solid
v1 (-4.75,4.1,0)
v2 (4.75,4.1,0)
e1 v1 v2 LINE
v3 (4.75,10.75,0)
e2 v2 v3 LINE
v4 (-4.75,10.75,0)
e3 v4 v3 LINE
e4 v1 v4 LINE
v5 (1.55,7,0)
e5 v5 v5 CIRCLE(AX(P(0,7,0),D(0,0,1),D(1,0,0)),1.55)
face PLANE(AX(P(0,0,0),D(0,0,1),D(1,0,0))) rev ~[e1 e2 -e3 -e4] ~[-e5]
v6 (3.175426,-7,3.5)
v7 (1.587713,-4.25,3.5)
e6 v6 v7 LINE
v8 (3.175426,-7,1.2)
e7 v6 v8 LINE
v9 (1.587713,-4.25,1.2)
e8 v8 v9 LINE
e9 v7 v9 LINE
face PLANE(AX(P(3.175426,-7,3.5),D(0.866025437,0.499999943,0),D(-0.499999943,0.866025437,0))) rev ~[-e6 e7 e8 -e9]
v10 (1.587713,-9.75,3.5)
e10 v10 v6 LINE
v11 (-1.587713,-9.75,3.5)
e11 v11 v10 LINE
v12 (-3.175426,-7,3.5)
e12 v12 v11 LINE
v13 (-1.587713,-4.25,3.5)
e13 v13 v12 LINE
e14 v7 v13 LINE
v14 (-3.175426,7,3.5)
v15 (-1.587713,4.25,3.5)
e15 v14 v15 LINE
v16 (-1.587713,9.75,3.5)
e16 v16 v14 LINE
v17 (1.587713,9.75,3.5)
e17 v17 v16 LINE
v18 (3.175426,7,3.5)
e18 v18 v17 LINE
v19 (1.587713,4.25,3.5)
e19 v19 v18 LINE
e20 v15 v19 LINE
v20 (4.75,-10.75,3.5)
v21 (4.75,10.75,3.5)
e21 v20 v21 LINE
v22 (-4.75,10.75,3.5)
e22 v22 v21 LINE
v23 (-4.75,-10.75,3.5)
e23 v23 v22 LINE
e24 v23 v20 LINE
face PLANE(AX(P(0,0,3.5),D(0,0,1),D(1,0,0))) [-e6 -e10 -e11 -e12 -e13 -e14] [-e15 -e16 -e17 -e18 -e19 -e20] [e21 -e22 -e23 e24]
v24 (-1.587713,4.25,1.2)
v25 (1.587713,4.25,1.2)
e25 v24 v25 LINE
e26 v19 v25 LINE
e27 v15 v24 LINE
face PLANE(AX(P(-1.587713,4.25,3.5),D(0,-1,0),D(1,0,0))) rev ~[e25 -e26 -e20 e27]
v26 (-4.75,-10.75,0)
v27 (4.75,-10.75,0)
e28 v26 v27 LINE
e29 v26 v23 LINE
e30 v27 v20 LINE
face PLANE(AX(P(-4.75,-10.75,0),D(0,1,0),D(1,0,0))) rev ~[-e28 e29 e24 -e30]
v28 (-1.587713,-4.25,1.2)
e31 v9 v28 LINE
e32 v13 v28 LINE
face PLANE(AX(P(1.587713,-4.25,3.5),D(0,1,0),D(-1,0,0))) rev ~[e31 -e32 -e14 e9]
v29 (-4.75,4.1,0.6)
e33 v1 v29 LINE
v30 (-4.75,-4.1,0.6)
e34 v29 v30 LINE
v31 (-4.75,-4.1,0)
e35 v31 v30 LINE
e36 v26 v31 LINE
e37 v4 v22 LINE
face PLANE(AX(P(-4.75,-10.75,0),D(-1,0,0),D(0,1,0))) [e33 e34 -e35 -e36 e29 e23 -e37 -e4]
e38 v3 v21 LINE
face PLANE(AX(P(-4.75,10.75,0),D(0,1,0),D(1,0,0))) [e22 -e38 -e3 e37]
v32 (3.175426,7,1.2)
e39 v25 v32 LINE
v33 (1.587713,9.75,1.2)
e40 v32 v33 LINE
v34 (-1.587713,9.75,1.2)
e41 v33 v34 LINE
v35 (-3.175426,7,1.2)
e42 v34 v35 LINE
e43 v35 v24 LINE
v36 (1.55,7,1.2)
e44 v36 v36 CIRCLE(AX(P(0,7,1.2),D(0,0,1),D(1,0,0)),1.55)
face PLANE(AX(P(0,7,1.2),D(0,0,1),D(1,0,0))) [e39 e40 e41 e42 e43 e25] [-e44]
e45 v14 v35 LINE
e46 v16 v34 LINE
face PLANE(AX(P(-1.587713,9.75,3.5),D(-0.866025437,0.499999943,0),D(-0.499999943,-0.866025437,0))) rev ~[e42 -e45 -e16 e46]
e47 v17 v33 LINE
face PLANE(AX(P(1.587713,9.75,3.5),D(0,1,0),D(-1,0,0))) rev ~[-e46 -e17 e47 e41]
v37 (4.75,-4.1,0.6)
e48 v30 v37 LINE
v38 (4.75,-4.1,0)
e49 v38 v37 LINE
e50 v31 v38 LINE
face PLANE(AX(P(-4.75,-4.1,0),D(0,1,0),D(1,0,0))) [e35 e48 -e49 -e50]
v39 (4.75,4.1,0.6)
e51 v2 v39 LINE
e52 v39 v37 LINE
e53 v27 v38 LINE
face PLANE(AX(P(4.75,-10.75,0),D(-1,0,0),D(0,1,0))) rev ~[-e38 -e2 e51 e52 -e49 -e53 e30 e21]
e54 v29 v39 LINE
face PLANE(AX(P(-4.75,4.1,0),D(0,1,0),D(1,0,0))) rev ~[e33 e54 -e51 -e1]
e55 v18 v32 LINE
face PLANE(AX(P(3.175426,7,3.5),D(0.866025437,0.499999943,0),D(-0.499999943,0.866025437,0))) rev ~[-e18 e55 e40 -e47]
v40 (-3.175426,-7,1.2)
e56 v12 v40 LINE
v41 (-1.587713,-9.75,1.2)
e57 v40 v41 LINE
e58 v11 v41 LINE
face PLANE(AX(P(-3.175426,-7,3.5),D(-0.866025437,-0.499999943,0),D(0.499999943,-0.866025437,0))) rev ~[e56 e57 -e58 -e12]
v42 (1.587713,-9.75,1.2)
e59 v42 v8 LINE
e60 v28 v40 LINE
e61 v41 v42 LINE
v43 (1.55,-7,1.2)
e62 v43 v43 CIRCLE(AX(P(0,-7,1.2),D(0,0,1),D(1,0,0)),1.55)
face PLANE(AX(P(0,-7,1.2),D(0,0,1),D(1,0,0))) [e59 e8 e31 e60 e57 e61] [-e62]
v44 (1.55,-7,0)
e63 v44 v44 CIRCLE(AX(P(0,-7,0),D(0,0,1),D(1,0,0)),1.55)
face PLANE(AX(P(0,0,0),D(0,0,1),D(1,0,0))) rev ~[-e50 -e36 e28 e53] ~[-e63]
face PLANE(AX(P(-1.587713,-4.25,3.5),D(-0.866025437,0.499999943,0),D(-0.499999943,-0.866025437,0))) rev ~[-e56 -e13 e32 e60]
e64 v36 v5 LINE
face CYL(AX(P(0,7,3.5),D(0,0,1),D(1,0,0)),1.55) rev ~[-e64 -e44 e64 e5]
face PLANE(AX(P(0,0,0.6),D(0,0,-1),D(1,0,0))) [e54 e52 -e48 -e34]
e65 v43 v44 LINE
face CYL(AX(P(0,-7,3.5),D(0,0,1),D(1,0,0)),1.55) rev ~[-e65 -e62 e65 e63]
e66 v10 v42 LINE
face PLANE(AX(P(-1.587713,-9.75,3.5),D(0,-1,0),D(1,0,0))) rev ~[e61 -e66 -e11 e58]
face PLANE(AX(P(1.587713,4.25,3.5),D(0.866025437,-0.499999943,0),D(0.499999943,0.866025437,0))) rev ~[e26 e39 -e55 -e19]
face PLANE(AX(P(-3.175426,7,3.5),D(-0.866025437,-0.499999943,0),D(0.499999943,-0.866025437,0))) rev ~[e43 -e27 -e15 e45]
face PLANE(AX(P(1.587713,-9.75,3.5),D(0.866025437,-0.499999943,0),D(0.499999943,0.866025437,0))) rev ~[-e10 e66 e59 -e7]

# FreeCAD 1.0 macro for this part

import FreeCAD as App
import Part
import Sketcher

V = App.Vector
Q = App.Units.Quantity

doc = App.newDocument("Part")
body = doc.addObject("PartDesign::Body", "Body")

# Sketch on XY plane
sketch1 = doc.addObject("Sketcher::SketchObject", "Sketch")
body.addObject(sketch1)
sketch1.AttachmentSupport = (doc.XY_Plane, [""])
sketch1.MapMode = "FlatFace"
sketch1.addGeometry(Part.LineSegment(V(-5, 11, 0), V(-5, -11, 0)), False)
sketch1.addGeometry(Part.LineSegment(V(-5, -11, 0), V(5, -11, 0)), False)
sketch1.addGeometry(Part.LineSegment(V(5, -11, 0), V(5, 11, 0)), False)
sketch1.addGeometry(Part.LineSegment(V(5, 11, 0), V(-5, 11, 0)), False)
sketch1.addConstraint(Sketcher.Constraint("Coincident", 0, 2, 1, 1))
sketch1.addConstraint(Sketcher.Constraint("Coincident", 1, 2, 2, 1))
sketch1.addConstraint(Sketcher.Constraint("Coincident", 2, 2, 3, 1))
sketch1.addConstraint(Sketcher.Constraint("Coincident", 3, 2, 0, 1))
sketch1.addConstraint(Sketcher.Constraint("Vertical", 0))
sketch1.addConstraint(Sketcher.Constraint("Horizontal", 1))
sketch1.addConstraint(Sketcher.Constraint("Vertical", 2))
sketch1.addConstraint(Sketcher.Constraint("Horizontal", 3))
sketch1.addConstraint(Sketcher.Constraint("Symmetric", 0, 2, 2, 2, -1, 1))
sketch1.addConstraint(Sketcher.Constraint("DistanceX", 1, 1, 1, 2, Q("9.5 mm")))
sketch1.addConstraint(Sketcher.Constraint("DistanceY", 0, 2, 0, 1, Q("21.5 mm")))
pad1 = doc.addObject("PartDesign::Pad", "Pad")
body.addObject(pad1)
pad1.Profile = sketch1
pad1.Length = 3.5

# Sketch on XY plane
sketch2 = doc.addObject("Sketcher::SketchObject", "Sketch001")
body.addObject(sketch2)
sketch2.AttachmentSupport = (doc.XY_Plane, [""])
sketch2.MapMode = "FlatFace"
sketch2.AttachmentOffset = App.Placement(V(0, 0, 3.5), App.Rotation())
sketch2.addGeometry(Part.Circle(V(0, 7, 0), V(0, 0, 1), 1.6), False)
sketch2.addGeometry(Part.Circle(V(0, -7, 0), V(0, 0, 1), 1.6), False)
sketch2.addConstraint(Sketcher.Constraint("Equal", 0, 1))
sketch2.addConstraint(Sketcher.Constraint("Symmetric", 0, 3, 1, 3, -1, 1))
sketch2.addConstraint(Sketcher.Constraint("PointOnObject", 0, 3, -2))
sketch2.addConstraint(Sketcher.Constraint("Diameter", 0, Q("3.1 mm")))
sketch2.addConstraint(Sketcher.Constraint("DistanceY", -1, 1, 0, 3, Q("7 mm")))
pocket1 = doc.addObject("PartDesign::Pocket", "Pocket")
body.addObject(pocket1)
pocket1.Profile = sketch2
pocket1.Type = "ThroughAll"

# Sketch on XY plane
sketch3 = doc.addObject("Sketcher::SketchObject", "Sketch002")
body.addObject(sketch3)
sketch3.AttachmentSupport = (doc.XY_Plane, [""])
sketch3.MapMode = "FlatFace"
sketch3.addGeometry(Part.LineSegment(V(-5, -4, 0), V(-5, 4, 0)), False)
sketch3.addGeometry(Part.LineSegment(V(-5, 4, 0), V(5, 4, 0)), False)
sketch3.addGeometry(Part.LineSegment(V(5, 4, 0), V(5, -4, 0)), False)
sketch3.addGeometry(Part.LineSegment(V(5, -4, 0), V(-5, -4, 0)), False)
sketch3.addConstraint(Sketcher.Constraint("Coincident", 0, 2, 1, 1))
sketch3.addConstraint(Sketcher.Constraint("Coincident", 1, 2, 2, 1))
sketch3.addConstraint(Sketcher.Constraint("Coincident", 2, 2, 3, 1))
sketch3.addConstraint(Sketcher.Constraint("Coincident", 3, 2, 0, 1))
sketch3.addConstraint(Sketcher.Constraint("Vertical", 0))
sketch3.addConstraint(Sketcher.Constraint("Horizontal", 1))
sketch3.addConstraint(Sketcher.Constraint("Vertical", 2))
sketch3.addConstraint(Sketcher.Constraint("Horizontal", 3))
sketch3.addConstraint(Sketcher.Constraint("Symmetric", 0, 2, 2, 2, -1, 1))
sketch3.addConstraint(Sketcher.Constraint("DistanceX", 1, 1, 1, 2, Q("9.5 mm")))
sketch3.addConstraint(Sketcher.Constraint("DistanceY", 0, 1, 0, 2, Q("8.2 mm")))
pocket2 = doc.addObject("PartDesign::Pocket", "Pocket001")
body.addObject(pocket2)
pocket2.Profile = sketch3
pocket2.Length = 0.6
pocket2.Reversed = True

# Sketch on XY plane
sketch4 = doc.addObject("Sketcher::SketchObject", "Sketch003")
body.addObject(sketch4)
sketch4.AttachmentSupport = (doc.XY_Plane, [""])
sketch4.MapMode = "FlatFace"
sketch4.AttachmentOffset = App.Placement(V(0, 0, 3.5), App.Rotation())
sketch4.addGeometry(Part.LineSegment(V(1.6, 4.2, 0), V(3.2, 7, 0)), False)
sketch4.addGeometry(Part.LineSegment(V(3.2, 7, 0), V(1.6, 9.8, 0)), False)
sketch4.addGeometry(Part.LineSegment(V(1.6, 9.8, 0), V(-1.6, 9.8, 0)), False)
sketch4.addGeometry(Part.LineSegment(V(-1.6, 9.8, 0), V(-3.2, 7, 0)), False)
sketch4.addGeometry(Part.LineSegment(V(-3.2, 7, 0), V(-1.6, 4.2, 0)), False)
sketch4.addGeometry(Part.LineSegment(V(-1.6, 4.2, 0), V(1.6, 4.2, 0)), False)
sketch4.addGeometry(Part.LineSegment(V(1.6, -9.8, 0), V(3.2, -7, 0)), False)
sketch4.addGeometry(Part.LineSegment(V(3.2, -7, 0), V(1.6, -4.2, 0)), False)
sketch4.addGeometry(Part.LineSegment(V(1.6, -4.2, 0), V(-1.6, -4.2, 0)), False)
sketch4.addGeometry(Part.LineSegment(V(-1.6, -4.2, 0), V(-3.2, -7, 0)), False)
sketch4.addGeometry(Part.LineSegment(V(-3.2, -7, 0), V(-1.6, -9.8, 0)), False)
sketch4.addGeometry(Part.LineSegment(V(-1.6, -9.8, 0), V(1.6, -9.8, 0)), False)
sketch4.addConstraint(Sketcher.Constraint("Coincident", 0, 2, 1, 1))
sketch4.addConstraint(Sketcher.Constraint("Coincident", 1, 2, 2, 1))
sketch4.addConstraint(Sketcher.Constraint("Coincident", 2, 2, 3, 1))
sketch4.addConstraint(Sketcher.Constraint("Coincident", 3, 2, 4, 1))
sketch4.addConstraint(Sketcher.Constraint("Coincident", 4, 2, 5, 1))
sketch4.addConstraint(Sketcher.Constraint("Coincident", 5, 2, 0, 1))
sketch4.addConstraint(Sketcher.Constraint("Coincident", 6, 2, 7, 1))
sketch4.addConstraint(Sketcher.Constraint("Coincident", 7, 2, 8, 1))
sketch4.addConstraint(Sketcher.Constraint("Coincident", 8, 2, 9, 1))
sketch4.addConstraint(Sketcher.Constraint("Coincident", 9, 2, 10, 1))
sketch4.addConstraint(Sketcher.Constraint("Coincident", 10, 2, 11, 1))
sketch4.addConstraint(Sketcher.Constraint("Coincident", 11, 2, 6, 1))
sketch4.addConstraint(Sketcher.Constraint("Horizontal", 2))
sketch4.addConstraint(Sketcher.Constraint("Horizontal", 5))
sketch4.addConstraint(Sketcher.Constraint("Horizontal", 8))
sketch4.addConstraint(Sketcher.Constraint("Horizontal", 11))
sketch4.addConstraint(Sketcher.Constraint("Symmetric", 3, 2, 6, 2, -1, 1))
sketch4.addConstraint(Sketcher.Constraint("Symmetric", 4, 2, 7, 2, -1, 1))
sketch4.addConstraint(Sketcher.Constraint("Symmetric", 0, 2, 9, 2, -1, 1))
sketch4.addConstraint(Sketcher.Constraint("Symmetric", 1, 2, 10, 2, -1, 1))
sketch4.addConstraint(Sketcher.Constraint("Symmetric", 0, 2, 3, 2, -2))
sketch4.addConstraint(Sketcher.Constraint("Parallel", 0, 3))
sketch4.addConstraint(Sketcher.Constraint("Parallel", 1, 4))
sketch4.addConstraint(Sketcher.Constraint("Parallel", 3, 6))
sketch4.addConstraint(Sketcher.Constraint("Parallel", 6, 9))
sketch4.addConstraint(Sketcher.Constraint("Vertical", 2, 2, 4, 2))
sketch4.addConstraint(Sketcher.Constraint("Vertical", 1, 2, 5, 2))
sketch4.addConstraint(Sketcher.Constraint("Angle", 0, Q("60.000004 deg")))
sketch4.addConstraint(Sketcher.Constraint("DistanceY", -1, 1, 0, 2, Q("7 mm")))
sketch4.addConstraint(Sketcher.Constraint("DistanceY", 4, 2, 2, 2, Q("5.5 mm")))
sketch4.addConstraint(Sketcher.Constraint("DistanceX", 2, 2, 2, 1, Q("3.175426 mm")))
pocket3 = doc.addObject("PartDesign::Pocket", "Pocket002")
body.addObject(pocket3)
pocket3.Profile = sketch4
pocket3.Length = 2.3

doc.recompute()
